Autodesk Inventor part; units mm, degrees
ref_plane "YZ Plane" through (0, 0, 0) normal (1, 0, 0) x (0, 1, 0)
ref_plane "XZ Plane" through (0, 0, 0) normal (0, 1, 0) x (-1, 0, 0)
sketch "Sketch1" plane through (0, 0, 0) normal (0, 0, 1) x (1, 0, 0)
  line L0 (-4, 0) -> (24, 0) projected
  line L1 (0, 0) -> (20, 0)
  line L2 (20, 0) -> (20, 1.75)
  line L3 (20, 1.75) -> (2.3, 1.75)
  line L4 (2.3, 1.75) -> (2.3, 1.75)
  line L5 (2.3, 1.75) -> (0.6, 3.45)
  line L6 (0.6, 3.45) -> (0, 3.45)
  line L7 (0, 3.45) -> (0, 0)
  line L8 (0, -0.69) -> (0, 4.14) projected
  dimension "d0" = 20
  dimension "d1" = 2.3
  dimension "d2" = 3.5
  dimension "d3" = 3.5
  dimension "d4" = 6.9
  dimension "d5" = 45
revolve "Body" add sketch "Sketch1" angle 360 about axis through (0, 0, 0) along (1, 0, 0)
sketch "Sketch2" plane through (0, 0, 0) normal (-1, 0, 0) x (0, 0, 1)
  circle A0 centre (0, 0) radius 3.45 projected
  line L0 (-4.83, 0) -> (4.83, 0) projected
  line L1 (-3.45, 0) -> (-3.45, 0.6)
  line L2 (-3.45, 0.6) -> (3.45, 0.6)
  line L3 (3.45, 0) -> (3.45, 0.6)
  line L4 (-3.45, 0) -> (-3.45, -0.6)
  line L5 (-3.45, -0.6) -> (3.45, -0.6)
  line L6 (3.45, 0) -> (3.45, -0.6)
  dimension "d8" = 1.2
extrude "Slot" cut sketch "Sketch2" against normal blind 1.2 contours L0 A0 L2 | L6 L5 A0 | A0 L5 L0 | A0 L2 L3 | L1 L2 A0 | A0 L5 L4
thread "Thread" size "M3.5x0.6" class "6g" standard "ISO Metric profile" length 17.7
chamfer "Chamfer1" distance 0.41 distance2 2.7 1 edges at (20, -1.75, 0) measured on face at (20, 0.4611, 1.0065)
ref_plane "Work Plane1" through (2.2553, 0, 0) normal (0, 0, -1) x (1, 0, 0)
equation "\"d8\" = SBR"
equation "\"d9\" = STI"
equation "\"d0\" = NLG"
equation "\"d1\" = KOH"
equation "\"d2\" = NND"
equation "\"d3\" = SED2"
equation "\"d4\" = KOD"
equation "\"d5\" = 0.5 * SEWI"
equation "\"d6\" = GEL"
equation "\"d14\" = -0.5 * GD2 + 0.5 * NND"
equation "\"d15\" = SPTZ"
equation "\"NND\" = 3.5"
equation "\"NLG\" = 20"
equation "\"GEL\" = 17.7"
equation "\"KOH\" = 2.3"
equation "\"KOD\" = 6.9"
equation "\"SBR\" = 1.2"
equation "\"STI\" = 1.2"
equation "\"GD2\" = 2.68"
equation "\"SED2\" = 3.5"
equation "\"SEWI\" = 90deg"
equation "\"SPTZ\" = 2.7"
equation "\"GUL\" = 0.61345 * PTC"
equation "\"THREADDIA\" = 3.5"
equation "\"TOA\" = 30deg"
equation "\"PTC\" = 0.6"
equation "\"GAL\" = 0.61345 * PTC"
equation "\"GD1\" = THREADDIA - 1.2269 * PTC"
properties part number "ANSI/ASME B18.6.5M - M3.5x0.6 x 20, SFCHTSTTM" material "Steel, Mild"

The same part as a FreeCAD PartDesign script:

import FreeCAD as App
import Part
import Sketcher

V = App.Vector
Q = App.Units.Quantity


def edges_at(feature, points):
    """Names of the edges that pass closest to the given points."""
    edges = feature.Shape.Edges
    near = lambda p: min(range(len(edges)), key=lambda i: edges[i].distToShape(Part.Vertex(*p))[0])
    return sorted({f"Edge{near(p) + 1}" for p in points})

doc = App.newDocument("Part")
body = doc.addObject("PartDesign::Body", "Body")

sketch1 = body.newObject("Sketcher::SketchObject", "Sketch")
sketch1.AttachmentSupport = (doc.getObject("XY_Plane"), [""])
sketch1.MapMode = "FlatFace"
sketch1.addGeometry([
    Part.LineSegment(V(0, 3.5, 0), V(0, 0, 0)),
    Part.LineSegment(V(0, 0, 0), V(20, 0, 0)),
    Part.LineSegment(V(20, 0, 0), V(20, 1.8, 0)),
    Part.LineSegment(V(20, 1.8, 0), V(2.3, 1.8, 0)),
    Part.LineSegment(V(2.3, 1.8, 0), V(0.6, 3.5, 0)),
    Part.LineSegment(V(0.6, 3.5, 0), V(0, 3.5, 0)),
], False)
sketch1.addConstraint([
    Sketcher.Constraint("Coincident", 0, 2, 1, 1),
    Sketcher.Constraint("Coincident", 1, 2, 2, 1),
    Sketcher.Constraint("Coincident", 2, 2, 3, 1),
    Sketcher.Constraint("Coincident", 3, 2, 4, 1),
    Sketcher.Constraint("Coincident", 4, 2, 5, 1),
    Sketcher.Constraint("Coincident", 5, 2, 0, 1),
    Sketcher.Constraint("Vertical", 0),
    Sketcher.Constraint("Horizontal", 1),
    Sketcher.Constraint("Vertical", 2),
    Sketcher.Constraint("Horizontal", 3),
    Sketcher.Constraint("Horizontal", 5),
    Sketcher.Constraint("Coincident", 0, 2, -1, 1),
    Sketcher.Constraint("DistanceX", 1, 1, 1, 2, 20.0),
    Sketcher.Constraint("DistanceX", -1, 1, 3, 2, 2.3),
    Sketcher.Constraint("Angle", 4, Q("135 deg")),
    Sketcher.Constraint("DistanceX", 5, 2, 5, 1, 0.6),
    Sketcher.Constraint("DistanceY", 0, 2, 0, 1, 3.45),
])
revolution = body.newObject("PartDesign::Revolution", "Revolution")
revolution.Profile = sketch1
revolution.ReferenceAxis = (sketch1, ["H_Axis"])
revolution.Angle = 360

sketch2 = body.newObject("Sketcher::SketchObject", "Sketch001")
sketch2.AttachmentSupport = (doc.getObject("YZ_Plane"), [""])
sketch2.MapMode = "FlatFace"
sketch2.addGeometry([
    Part.LineSegment(V(0.6, -3.5, 0), V(-0.6, -3.5, 0)),
    Part.LineSegment(V(-0.6, -3.5, 0), V(-0.6, 3.5, 0)),
    Part.LineSegment(V(-0.6, 3.5, 0), V(0.6, 3.5, 0)),
    Part.LineSegment(V(0.6, 3.5, 0), V(0.6, -3.5, 0)),
], False)
sketch2.addConstraint([
    Sketcher.Constraint("Coincident", 0, 2, 1, 1),
    Sketcher.Constraint("Coincident", 1, 2, 2, 1),
    Sketcher.Constraint("Coincident", 2, 2, 3, 1),
    Sketcher.Constraint("Coincident", 3, 2, 0, 1),
    Sketcher.Constraint("Horizontal", 0),
    Sketcher.Constraint("Vertical", 1),
    Sketcher.Constraint("Horizontal", 2),
    Sketcher.Constraint("Vertical", 3),
    Sketcher.Constraint("Symmetric", 0, 2, 2, 2, -1, 1),
    Sketcher.Constraint("DistanceX", 0, 2, 0, 1, 1.2),
    Sketcher.Constraint("DistanceY", 1, 1, 1, 2, 6.9),
])
pocket1 = body.newObject("PartDesign::Pocket", "Pocket")
pocket1.Profile = sketch2
pocket1.Length = 1.2
pocket1.Reversed = True
doc.recompute()

chamfer = body.newObject("PartDesign::Chamfer", "Chamfer")
chamfer.Base = (pocket1, edges_at(pocket1, [(20, -1.75, 0)]))
chamfer.ChamferType = "Two distances"
chamfer.Size = 0.41
chamfer.Size2 = 2.7
chamfer.FlipDirection = True

doc.recompute()
